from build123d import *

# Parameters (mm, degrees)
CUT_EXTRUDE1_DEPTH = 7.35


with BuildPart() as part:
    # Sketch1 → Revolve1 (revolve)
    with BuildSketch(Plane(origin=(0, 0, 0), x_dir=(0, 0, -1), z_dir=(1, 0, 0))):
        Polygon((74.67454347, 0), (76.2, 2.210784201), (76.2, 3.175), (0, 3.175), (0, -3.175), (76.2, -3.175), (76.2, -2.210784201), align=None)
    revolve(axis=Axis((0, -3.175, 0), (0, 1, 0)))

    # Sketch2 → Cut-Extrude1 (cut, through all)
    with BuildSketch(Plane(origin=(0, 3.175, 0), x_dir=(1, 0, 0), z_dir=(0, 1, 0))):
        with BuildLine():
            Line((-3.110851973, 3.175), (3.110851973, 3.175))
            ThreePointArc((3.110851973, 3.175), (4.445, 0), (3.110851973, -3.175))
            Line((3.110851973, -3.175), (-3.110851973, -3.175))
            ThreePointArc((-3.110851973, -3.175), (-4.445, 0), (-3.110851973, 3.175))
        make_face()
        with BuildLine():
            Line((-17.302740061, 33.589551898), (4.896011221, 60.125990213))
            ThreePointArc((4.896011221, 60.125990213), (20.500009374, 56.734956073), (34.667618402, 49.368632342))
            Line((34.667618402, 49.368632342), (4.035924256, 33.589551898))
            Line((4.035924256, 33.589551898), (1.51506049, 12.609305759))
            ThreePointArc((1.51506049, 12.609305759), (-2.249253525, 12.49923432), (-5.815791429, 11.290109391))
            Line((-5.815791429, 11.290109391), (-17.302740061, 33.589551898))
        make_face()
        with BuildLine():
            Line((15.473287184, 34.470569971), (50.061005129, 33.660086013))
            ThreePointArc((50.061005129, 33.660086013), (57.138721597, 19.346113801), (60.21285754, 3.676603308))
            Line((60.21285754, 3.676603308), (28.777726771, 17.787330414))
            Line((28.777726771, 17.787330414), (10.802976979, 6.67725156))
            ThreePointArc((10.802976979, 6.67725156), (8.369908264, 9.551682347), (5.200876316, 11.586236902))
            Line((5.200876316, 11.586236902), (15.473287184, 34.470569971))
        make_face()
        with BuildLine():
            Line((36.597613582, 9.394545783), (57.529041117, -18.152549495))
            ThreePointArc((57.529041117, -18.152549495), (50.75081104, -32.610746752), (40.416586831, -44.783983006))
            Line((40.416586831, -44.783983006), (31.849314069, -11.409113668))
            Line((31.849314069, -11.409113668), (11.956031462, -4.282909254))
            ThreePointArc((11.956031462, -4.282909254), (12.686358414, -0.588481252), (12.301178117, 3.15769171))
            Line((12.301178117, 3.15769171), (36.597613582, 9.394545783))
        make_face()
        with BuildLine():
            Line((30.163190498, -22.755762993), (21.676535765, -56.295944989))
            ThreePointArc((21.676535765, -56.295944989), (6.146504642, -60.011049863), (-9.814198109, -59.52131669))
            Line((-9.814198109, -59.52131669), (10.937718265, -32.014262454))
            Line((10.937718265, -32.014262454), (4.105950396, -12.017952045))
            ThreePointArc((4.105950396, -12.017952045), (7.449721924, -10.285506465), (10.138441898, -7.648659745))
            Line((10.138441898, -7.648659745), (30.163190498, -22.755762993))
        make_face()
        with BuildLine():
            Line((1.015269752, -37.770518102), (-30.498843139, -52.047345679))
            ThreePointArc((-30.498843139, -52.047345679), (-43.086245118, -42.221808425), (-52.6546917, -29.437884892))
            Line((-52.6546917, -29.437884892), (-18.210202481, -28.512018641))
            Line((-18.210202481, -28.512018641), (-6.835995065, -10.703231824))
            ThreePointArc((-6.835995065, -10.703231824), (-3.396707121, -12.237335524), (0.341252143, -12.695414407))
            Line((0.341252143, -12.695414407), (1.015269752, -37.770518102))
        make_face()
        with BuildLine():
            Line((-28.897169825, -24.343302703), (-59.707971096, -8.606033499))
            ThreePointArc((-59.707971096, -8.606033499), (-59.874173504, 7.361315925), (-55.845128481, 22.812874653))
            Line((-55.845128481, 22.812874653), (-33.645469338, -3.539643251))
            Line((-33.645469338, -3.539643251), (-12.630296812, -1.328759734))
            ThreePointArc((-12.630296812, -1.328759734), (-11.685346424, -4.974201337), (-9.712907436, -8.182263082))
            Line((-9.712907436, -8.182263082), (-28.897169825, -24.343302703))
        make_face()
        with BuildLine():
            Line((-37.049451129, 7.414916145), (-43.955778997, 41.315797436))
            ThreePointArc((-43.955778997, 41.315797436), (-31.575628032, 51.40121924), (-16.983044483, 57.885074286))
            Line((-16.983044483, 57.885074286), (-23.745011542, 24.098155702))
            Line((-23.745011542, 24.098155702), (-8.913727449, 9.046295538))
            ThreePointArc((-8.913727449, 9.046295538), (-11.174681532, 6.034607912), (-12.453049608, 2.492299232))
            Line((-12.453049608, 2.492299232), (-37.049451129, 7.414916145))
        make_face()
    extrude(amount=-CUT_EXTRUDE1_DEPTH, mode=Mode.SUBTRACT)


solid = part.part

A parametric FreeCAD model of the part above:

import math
import FreeCAD as App
import Part
import Sketcher
from FreeCAD import Vector
Q = App.Units.Quantity

doc = App.newDocument("Part")
body = doc.addObject("PartDesign::Body", "Body")

sketch1 = doc.addObject("Sketcher::SketchObject", "Sketch")
body.addObject(sketch1)
sketch1.AttachmentSupport = (doc.YZ_Plane, [""])
sketch1.MapMode = "FlatFace"
sketch1.addGeometry([
    Part.LineSegment(Vector(0, -74.7, 0), Vector(2.2, -76.2, 0)),
    Part.LineSegment(Vector(2.2, -76.2, 0), Vector(3.2, -76.2, 0)),
    Part.LineSegment(Vector(3.2, -76.2, 0), Vector(3.2, 0, 0)),
    Part.LineSegment(Vector(3.2, 0, 0), Vector(-3.2, 0, 0)),
    Part.LineSegment(Vector(-3.2, 0, 0), Vector(-3.2, -76.2, 0)),
    Part.LineSegment(Vector(-3.2, -76.2, 0), Vector(-2.2, -76.2, 0)),
    Part.LineSegment(Vector(-2.2, -76.2, 0), Vector(0, -74.7, 0)),
], False)
sketch1.addConstraint([
    Sketcher.Constraint("Coincident", 0, 2, 1, 1),
    Sketcher.Constraint("Coincident", 1, 2, 2, 1),
    Sketcher.Constraint("Coincident", 2, 2, 3, 1),
    Sketcher.Constraint("Coincident", 3, 2, 4, 1),
    Sketcher.Constraint("Coincident", 4, 2, 5, 1),
    Sketcher.Constraint("Coincident", 5, 2, 6, 1),
    Sketcher.Constraint("Coincident", 6, 2, 0, 1),
    Sketcher.Constraint("Horizontal", 1),
    Sketcher.Constraint("Vertical", 2),
    Sketcher.Constraint("Horizontal", 3),
    Sketcher.Constraint("Vertical", 4),
    Sketcher.Constraint("Horizontal", 5),
    Sketcher.Constraint("Symmetric", 2, 2, 3, 2, -1, 1),
    Sketcher.Constraint("Symmetric", 0, 2, 5, 2, -2),
    Sketcher.Constraint("PointOnObject", 6, 2, -2),
    Sketcher.Constraint("DistanceY", 2, 1, 2, 2, Q("3 in")),
    Sketcher.Constraint("DistanceX", 3, 2, 3, 1, Q("0.25 in")),
    Sketcher.Constraint("DistanceX", 1, 1, 1, 2, 0.964216),
    Sketcher.Constraint("Distance", 0, 2.685998),
])
revolution = doc.addObject("PartDesign::Revolution", "Revolution")
body.addObject(revolution)
revolution.Profile = sketch1
revolution.ReferenceAxis = (sketch1, ["H_Axis"])
revolution.Angle = 360

sketch2 = doc.addObject("Sketcher::SketchObject", "Sketch001")
body.addObject(sketch2)
sketch2.AttachmentSupport = (doc.XZ_Plane, [""])
sketch2.MapMode = "FlatFace"
sketch2.AttachmentOffset = App.Placement(Vector(0, 0, -0.125 * 25.4), App.Rotation())
sketch2.addGeometry([
    Part.LineSegment(Vector(3.1, -3.2, 0), Vector(-3.1, -3.2, 0)),
    Part.ArcOfCircle(Part.Circle(Vector(0, 0, 0), Vector(0, 0, 1), 4.4), math.radians(134), math.radians(226)),
    Part.LineSegment(Vector(-3.1, 3.2, 0), Vector(3.1, 3.2, 0)),
    Part.ArcOfCircle(Part.Circle(Vector(0, 0, 0), Vector(0, 0, 1), 4.4), math.radians(-46), math.radians(46)),
    Part.LineSegment(Vector(4.9, -60.1, 0), Vector(-17.3, -33.6, 0)),
    Part.LineSegment(Vector(-17.3, -33.6, 0), Vector(-5.8, -11.3, 0)),
    Part.ArcOfCircle(Part.Circle(Vector(0, 0, 0), Vector(0, 0, 1), 12.7), math.radians(-117), math.radians(-83)),
    Part.LineSegment(Vector(1.5, -12.6, 0), Vector(4, -33.6, 0)),
    Part.LineSegment(Vector(4, -33.6, 0), Vector(34.7, -49.4, 0)),
    Part.ArcOfCircle(Part.Circle(Vector(0, 0, 0), Vector(0, 0, 1), 60.3), math.radians(-85), math.radians(-55)),
    Part.LineSegment(Vector(50.1, -33.7, 0), Vector(15.5, -34.5, 0)),
    Part.LineSegment(Vector(15.5, -34.5, 0), Vector(5.2, -11.6, 0)),
    Part.ArcOfCircle(Part.Circle(Vector(0, 0, 0), Vector(0, 0, 1), 12.7), math.radians(-66), math.radians(-32)),
    Part.LineSegment(Vector(10.8, -6.7, 0), Vector(28.8, -17.8, 0)),
    Part.LineSegment(Vector(28.8, -17.8, 0), Vector(60.2, -3.7, 0)),
    Part.ArcOfCircle(Part.Circle(Vector(0, 0, 0), Vector(0, 0, 1), 60.3), math.radians(-34), math.radians(-3)),
    Part.LineSegment(Vector(57.5, 18.2, 0), Vector(36.6, -9.4, 0)),
    Part.LineSegment(Vector(36.6, -9.4, 0), Vector(12.3, -3.2, 0)),
    Part.ArcOfCircle(Part.Circle(Vector(0, 0, 0), Vector(0, 0, 1), 12.7), math.radians(-14), math.radians(20)),
    Part.LineSegment(Vector(12, 4.3, 0), Vector(31.8, 11.4, 0)),
    Part.LineSegment(Vector(31.8, 11.4, 0), Vector(40.4, 44.8, 0)),
    Part.ArcOfCircle(Part.Circle(Vector(0, 0, 0), Vector(0, 0, 1), 60.3), math.radians(18), math.radians(48)),
    Part.LineSegment(Vector(21.7, 56.3, 0), Vector(30.2, 22.8, 0)),
    Part.LineSegment(Vector(30.2, 22.8, 0), Vector(10.1, 7.6, 0)),
    Part.ArcOfCircle(Part.Circle(Vector(0, 0, 0), Vector(0, 0, 1), 12.7), math.radians(37), math.radians(71)),
    Part.LineSegment(Vector(4.1, 12, 0), Vector(10.9, 32, 0)),
    Part.LineSegment(Vector(10.9, 32, 0), Vector(-9.8, 59.5, 0)),
    Part.ArcOfCircle(Part.Circle(Vector(0, 0, 0), Vector(0, 0, 1), 60.3), math.radians(69), math.radians(99)),
    Part.LineSegment(Vector(-30.5, 52, 0), Vector(1, 37.8, 0)),
    Part.LineSegment(Vector(1, 37.8, 0), Vector(0.3, 12.7, 0)),
    Part.ArcOfCircle(Part.Circle(Vector(0, 0, 0), Vector(0, 0, 1), 12.7), math.radians(88), math.radians(123)),
    Part.LineSegment(Vector(-6.8, 10.7, 0), Vector(-18.2, 28.5, 0)),
    Part.LineSegment(Vector(-18.2, 28.5, 0), Vector(-52.7, 29.4, 0)),
    Part.ArcOfCircle(Part.Circle(Vector(0, 0, 0), Vector(0, 0, 1), 60.3), math.radians(120), math.radians(151)),
    Part.LineSegment(Vector(-59.7, 8.6, 0), Vector(-28.9, 24.3, 0)),
    Part.LineSegment(Vector(-28.9, 24.3, 0), Vector(-9.7, 8.2, 0)),
    Part.ArcOfCircle(Part.Circle(Vector(0, 0, 0), Vector(0, 0, 1), 12.7), math.radians(140), math.radians(174)),
    Part.LineSegment(Vector(-12.6, 1.3, 0), Vector(-33.6, 3.5, 0)),
    Part.LineSegment(Vector(-33.6, 3.5, 0), Vector(-55.8, -22.8, 0)),
    Part.ArcOfCircle(Part.Circle(Vector(0, 0, 0), Vector(0, 0, 1), 60.3), math.radians(172), math.radians(202)),
    Part.LineSegment(Vector(-44, -41.3, 0), Vector(-37, -7.4, 0)),
    Part.LineSegment(Vector(-37, -7.4, 0), Vector(-12.5, -2.5, 0)),
    Part.ArcOfCircle(Part.Circle(Vector(0, 0, 0), Vector(0, 0, 1), 12.7), math.radians(-169), math.radians(-135)),
    Part.LineSegment(Vector(-8.9, -9, 0), Vector(-23.7, -24.1, 0)),
    Part.LineSegment(Vector(-23.7, -24.1, 0), Vector(-17, -57.9, 0)),
    Part.ArcOfCircle(Part.Circle(Vector(0, 0, 0), Vector(0, 0, 1), 60.3), math.radians(-137), math.radians(-106)),
], False)
sketch2.addConstraint([
    Sketcher.Constraint("Coincident", 0, 2, 1, 2),
    Sketcher.Constraint("Coincident", 1, 1, 2, 1),
    Sketcher.Constraint("Coincident", 2, 2, 3, 2),
    Sketcher.Constraint("Coincident", 3, 1, 0, 1),
    Sketcher.Constraint("Coincident", 4, 2, 5, 1),
    Sketcher.Constraint("Coincident", 5, 2, 6, 1),
    Sketcher.Constraint("Coincident", 6, 2, 7, 1),
    Sketcher.Constraint("Coincident", 7, 2, 8, 1),
    Sketcher.Constraint("Coincident", 8, 2, 9, 2),
    Sketcher.Constraint("Coincident", 9, 1, 4, 1),
    Sketcher.Constraint("Coincident", 10, 2, 11, 1),
    Sketcher.Constraint("Coincident", 11, 2, 12, 1),
    Sketcher.Constraint("Coincident", 12, 2, 13, 1),
    Sketcher.Constraint("Coincident", 13, 2, 14, 1),
    Sketcher.Constraint("Coincident", 14, 2, 15, 2),
    Sketcher.Constraint("Coincident", 15, 1, 10, 1),
    Sketcher.Constraint("Coincident", 16, 2, 17, 1),
    Sketcher.Constraint("Coincident", 17, 2, 18, 1),
    Sketcher.Constraint("Coincident", 18, 2, 19, 1),
    Sketcher.Constraint("Coincident", 19, 2, 20, 1),
    Sketcher.Constraint("Coincident", 20, 2, 21, 2),
    Sketcher.Constraint("Coincident", 21, 1, 16, 1),
    Sketcher.Constraint("Coincident", 22, 2, 23, 1),
    Sketcher.Constraint("Coincident", 23, 2, 24, 1),
    Sketcher.Constraint("Coincident", 24, 2, 25, 1),
    Sketcher.Constraint("Coincident", 25, 2, 26, 1),
    Sketcher.Constraint("Coincident", 26, 2, 27, 2),
    Sketcher.Constraint("Coincident", 27, 1, 22, 1),
    Sketcher.Constraint("Coincident", 28, 2, 29, 1),
    Sketcher.Constraint("Coincident", 29, 2, 30, 1),
    Sketcher.Constraint("Coincident", 30, 2, 31, 1),
    Sketcher.Constraint("Coincident", 31, 2, 32, 1),
    Sketcher.Constraint("Coincident", 32, 2, 33, 2),
    Sketcher.Constraint("Coincident", 33, 1, 28, 1),
    Sketcher.Constraint("Coincident", 34, 2, 35, 1),
    Sketcher.Constraint("Coincident", 35, 2, 36, 1),
    Sketcher.Constraint("Coincident", 36, 2, 37, 1),
    Sketcher.Constraint("Coincident", 37, 2, 38, 1),
    Sketcher.Constraint("Coincident", 38, 2, 39, 2),
    Sketcher.Constraint("Coincident", 39, 1, 34, 1),
    Sketcher.Constraint("Coincident", 40, 2, 41, 1),
    Sketcher.Constraint("Coincident", 41, 2, 42, 1),
    Sketcher.Constraint("Coincident", 42, 2, 43, 1),
    Sketcher.Constraint("Coincident", 43, 2, 44, 1),
    Sketcher.Constraint("Coincident", 44, 2, 45, 2),
    Sketcher.Constraint("Coincident", 45, 1, 40, 1),
    Sketcher.Constraint("Horizontal", 0),
    Sketcher.Constraint("Horizontal", 2),
    Sketcher.Constraint("Coincident", 1, 3, -1, 1),
    Sketcher.Constraint("Coincident", 3, 3, -1, 1),
    Sketcher.Constraint("Coincident", 6, 3, -1, 1),
    Sketcher.Constraint("Coincident", 9, 3, -1, 1),
    Sketcher.Constraint("Coincident", 12, 3, -1, 1),
    Sketcher.Constraint("Coincident", 15, 3, -1, 1),
    Sketcher.Constraint("Coincident", 18, 3, -1, 1),
    Sketcher.Constraint("Coincident", 21, 3, -1, 1),
    Sketcher.Constraint("Coincident", 24, 3, -1, 1),
    Sketcher.Constraint("Coincident", 27, 3, -1, 1),
    Sketcher.Constraint("Coincident", 30, 3, -1, 1),
    Sketcher.Constraint("Coincident", 33, 3, -1, 1),
    Sketcher.Constraint("Coincident", 36, 3, -1, 1),
    Sketcher.Constraint("Coincident", 39, 3, -1, 1),
    Sketcher.Constraint("Coincident", 42, 3, -1, 1),
    Sketcher.Constraint("Coincident", 45, 3, -1, 1),
    Sketcher.Constraint("Equal", 1, 3),
    Sketcher.Constraint("Equal", 6, 12),
    Sketcher.Constraint("Equal", 9, 15),
    Sketcher.Constraint("Equal", 12, 18),
    Sketcher.Constraint("Equal", 15, 21),
    Sketcher.Constraint("Equal", 18, 24),
    Sketcher.Constraint("Equal", 21, 27),
    Sketcher.Constraint("Equal", 24, 30),
    Sketcher.Constraint("Equal", 27, 33),
    Sketcher.Constraint("Equal", 30, 36),
    Sketcher.Constraint("Equal", 33, 39),
    Sketcher.Constraint("Equal", 36, 42),
    Sketcher.Constraint("Equal", 39, 45),
    Sketcher.Constraint("Perpendicular", 5, 8),
    Sketcher.Constraint("Perpendicular", 11, 14),
    Sketcher.Constraint("Perpendicular", 17, 20),
    Sketcher.Constraint("Perpendicular", 23, 26),
    Sketcher.Constraint("Perpendicular", 29, 32),
    Sketcher.Constraint("Perpendicular", 35, 38),
    Sketcher.Constraint("Perpendicular", 41, 44),
    Sketcher.Constraint("Horizontal", 4, 2, 7, 2),
    Sketcher.Constraint("Vertical", 0, 2, 1, 1),
    Sketcher.Constraint("Equal", 4, 10),
    Sketcher.Constraint("Equal", 5, 11),
    Sketcher.Constraint("Equal", 7, 13),
    Sketcher.Constraint("Equal", 8, 14),
    Sketcher.Constraint("Equal", 10, 16),
    Sketcher.Constraint("Equal", 11, 17),
    Sketcher.Constraint("Equal", 13, 19),
    Sketcher.Constraint("Equal", 14, 20),
    Sketcher.Constraint("Equal", 16, 22),
    Sketcher.Constraint("Equal", 17, 23),
    Sketcher.Constraint("Equal", 19, 25),
    Sketcher.Constraint("Equal", 20, 26),
    Sketcher.Constraint("Equal", 22, 28),
    Sketcher.Constraint("Equal", 23, 29),
    Sketcher.Constraint("Equal", 25, 31),
    Sketcher.Constraint("Equal", 26, 32),
    Sketcher.Constraint("Equal", 28, 34),
    Sketcher.Constraint("Equal", 29, 35),
    Sketcher.Constraint("Equal", 31, 37),
    Sketcher.Constraint("Equal", 32, 38),
    Sketcher.Constraint("Equal", 34, 40),
    Sketcher.Constraint("Equal", 35, 41),
    Sketcher.Constraint("Equal", 37, 43),
    Sketcher.Constraint("Equal", 38, 44),
    Sketcher.Constraint("Radius", 6, Q("0.5 in")),
    Sketcher.Constraint("Radius", 1, Q("0.175 in")),
    Sketcher.Constraint("Radius", 9, Q("2.375 in")),
    Sketcher.Constraint("DistanceY", 0, 2, -1, 1, Q("0.125 in")),
    Sketcher.Constraint("DistanceX", 26, 2, -1, 1, 9.814198),
    Sketcher.Constraint("DistanceY", 41, 2, -1, 1, 2.492299),
    Sketcher.Constraint("Distance", 5, 25.084161),
    Sketcher.Constraint("Distance", 7, 21.13115),
    Sketcher.Constraint("Distance", 8, 34.456931),
    Sketcher.Constraint("DistanceX", 4, 2, -1, 1, 17.30274),
    Sketcher.Constraint("DistanceX", -1, 1, 6, 2, 1.51506),
    Sketcher.Constraint("DistanceX", -1, 1, 9, 1, 4.896011),
    Sketcher.Constraint("DistanceY", 10, 2, -1, 1, 34.47057),
    Sketcher.Constraint("DistanceY", 12, 2, -1, 1, 6.677252),
    Sketcher.Constraint("DistanceY", 13, 2, -1, 1, 17.78733),
    Sketcher.Constraint("DistanceX", -1, 1, 17, 2, 12.301178),
    Sketcher.Constraint("DistanceX", -1, 1, 18, 2, 11.956031),
    Sketcher.Constraint("DistanceX", -1, 1, 21, 1, 57.529041),
    Sketcher.Constraint("DistanceX", -1, 1, 22, 2, 30.16319),
    Sketcher.Constraint("DistanceX", -1, 1, 24, 2, 4.10595),
    Sketcher.Constraint("DistanceX", -1, 1, 28, 2, 1.01527),
    Sketcher.Constraint("DistanceY", -1, 1, 30, 2, 10.703232),
    Sketcher.Constraint("DistanceY", -1, 1, 31, 2, 28.512019),
    Sketcher.Constraint("DistanceX", 34, 2, -1, 1, 28.89717),
    Sketcher.Constraint("DistanceY", -1, 1, 36, 2, 1.32876),
    Sketcher.Constraint("DistanceX", 37, 2, -1, 1, 33.645469),
    Sketcher.Constraint("DistanceX", 40, 2, -1, 1, 37.049451),
    Sketcher.Constraint("DistanceX", 42, 2, -1, 1, 8.913727),
])
pocket1 = doc.addObject("PartDesign::Pocket", "Pocket")
body.addObject(pocket1)
pocket1.Profile = sketch2
pocket1.Type = "ThroughAll"
pocket1.Reversed = True

doc.recompute()
